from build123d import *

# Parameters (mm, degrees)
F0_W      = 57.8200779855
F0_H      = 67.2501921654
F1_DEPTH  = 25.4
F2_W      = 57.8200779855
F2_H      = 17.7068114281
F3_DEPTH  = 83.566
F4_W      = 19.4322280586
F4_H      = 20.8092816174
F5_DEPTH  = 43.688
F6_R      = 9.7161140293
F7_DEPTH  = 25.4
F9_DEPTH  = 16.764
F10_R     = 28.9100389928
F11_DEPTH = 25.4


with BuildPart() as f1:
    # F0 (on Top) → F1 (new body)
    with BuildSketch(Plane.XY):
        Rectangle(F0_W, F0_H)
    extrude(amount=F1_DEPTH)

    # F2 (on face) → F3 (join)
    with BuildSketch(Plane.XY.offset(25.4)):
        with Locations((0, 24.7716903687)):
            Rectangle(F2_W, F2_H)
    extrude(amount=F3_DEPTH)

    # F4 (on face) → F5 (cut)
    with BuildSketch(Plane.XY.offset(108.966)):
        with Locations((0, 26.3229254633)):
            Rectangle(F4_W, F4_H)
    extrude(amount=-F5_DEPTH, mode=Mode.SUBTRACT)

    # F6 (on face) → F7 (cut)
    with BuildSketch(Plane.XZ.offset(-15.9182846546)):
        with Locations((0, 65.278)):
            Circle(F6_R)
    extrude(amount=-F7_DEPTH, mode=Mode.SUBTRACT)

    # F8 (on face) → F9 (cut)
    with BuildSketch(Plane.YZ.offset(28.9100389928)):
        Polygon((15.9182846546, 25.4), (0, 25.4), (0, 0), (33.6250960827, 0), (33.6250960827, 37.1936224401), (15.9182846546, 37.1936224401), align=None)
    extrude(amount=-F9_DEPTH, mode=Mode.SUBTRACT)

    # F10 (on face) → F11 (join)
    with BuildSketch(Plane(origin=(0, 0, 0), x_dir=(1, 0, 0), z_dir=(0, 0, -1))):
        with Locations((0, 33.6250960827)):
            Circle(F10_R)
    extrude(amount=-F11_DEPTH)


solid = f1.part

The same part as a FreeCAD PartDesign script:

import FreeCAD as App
import Part
import Sketcher
from FreeCAD import Vector
Q = App.Units.Quantity

doc = App.newDocument("Part")
body = doc.addObject("PartDesign::Body", "Body")

# Sketch on XY plane
sketch1 = body.newObject("Sketcher::SketchObject", "Sketch")
sketch1.AttachmentSupport = (doc.getObject("XY_Plane"), [""])
sketch1.MapMode = "FlatFace"
sketch1.addGeometry([
    Part.LineSegment(Vector(-28.910039, 33.625096, 0), Vector(-28.910039, -33.625096, 0)),
    Part.LineSegment(Vector(-28.910039, -33.625096, 0), Vector(28.910039, -33.625096, 0)),
    Part.LineSegment(Vector(28.910039, -33.625096, 0), Vector(28.910039, 33.625096, 0)),
    Part.LineSegment(Vector(28.910039, 33.625096, 0), Vector(-28.910039, 33.625096, 0)),
], False)
sketch1.addConstraint([
    Sketcher.Constraint("Coincident", 0, 2, 1, 1),
    Sketcher.Constraint("Coincident", 1, 2, 2, 1),
    Sketcher.Constraint("Coincident", 2, 2, 3, 1),
    Sketcher.Constraint("Coincident", 3, 2, 0, 1),
    Sketcher.Constraint("Vertical", 0),
    Sketcher.Constraint("Horizontal", 1),
    Sketcher.Constraint("Vertical", 2),
    Sketcher.Constraint("Horizontal", 3),
    Sketcher.Constraint("Symmetric", 0, 2, 2, 2, -1, 1),
    Sketcher.Constraint("DistanceX", 1, 1, 1, 2, Q("57.820078 mm")),
    Sketcher.Constraint("DistanceY", 0, 2, 0, 1, Q("67.250192 mm")),
])
pad1 = body.newObject("PartDesign::Pad", "Pad")
pad1.Profile = sketch1
pad1.Length = Q("1 in")

# Sketch on XY plane
sketch2 = body.newObject("Sketcher::SketchObject", "Sketch001")
sketch2.AttachmentSupport = (doc.getObject("XY_Plane"), [""])
sketch2.MapMode = "FlatFace"
sketch2.AttachmentOffset = App.Placement(Vector(0, 0, 1 * 25.4), App.Rotation())
sketch2.addGeometry([
    Part.LineSegment(Vector(-28.910039, 33.625096, 0), Vector(-28.910039, 15.918285, 0)),
    Part.LineSegment(Vector(-28.910039, 15.918285, 0), Vector(28.910039, 15.918285, 0)),
    Part.LineSegment(Vector(28.910039, 15.918285, 0), Vector(28.910039, 33.625096, 0)),
    Part.LineSegment(Vector(28.910039, 33.625096, 0), Vector(-28.910039, 33.625096, 0)),
], False)
sketch2.addConstraint([
    Sketcher.Constraint("Coincident", 0, 2, 1, 1),
    Sketcher.Constraint("Coincident", 1, 2, 2, 1),
    Sketcher.Constraint("Coincident", 2, 2, 3, 1),
    Sketcher.Constraint("Coincident", 3, 2, 0, 1),
    Sketcher.Constraint("Vertical", 0),
    Sketcher.Constraint("Horizontal", 1),
    Sketcher.Constraint("Vertical", 2),
    Sketcher.Constraint("Horizontal", 3),
    Sketcher.Constraint("DistanceY", 0, 2, 0, 1, Q("17.706811 mm")),
    Sketcher.Constraint("DistanceX", 1, 1, 1, 2, Q("57.820078 mm")),
    Sketcher.Constraint("DistanceX", 0, 2, -1, 1, Q("28.910039 mm")),
    Sketcher.Constraint("DistanceY", -1, 1, 0, 2, Q("15.918285 mm")),
])
pad2 = body.newObject("PartDesign::Pad", "Pad001")
pad2.Profile = sketch2
pad2.Length = Q("3.29 in")

# Sketch on XY plane
sketch3 = body.newObject("Sketcher::SketchObject", "Sketch002")
sketch3.AttachmentSupport = (doc.getObject("XY_Plane"), [""])
sketch3.MapMode = "FlatFace"
sketch3.AttachmentOffset = App.Placement(Vector(0, 0, 4.29 * 25.4), App.Rotation())
sketch3.addGeometry([
    Part.LineSegment(Vector(-9.716114, 36.727566, 0), Vector(-9.716114, 15.918285, 0)),
    Part.LineSegment(Vector(-9.716114, 15.918285, 0), Vector(9.716114, 15.918285, 0)),
    Part.LineSegment(Vector(9.716114, 15.918285, 0), Vector(9.716114, 36.727566, 0)),
    Part.LineSegment(Vector(9.716114, 36.727566, 0), Vector(-9.716114, 36.727566, 0)),
], False)
sketch3.addConstraint([
    Sketcher.Constraint("Coincident", 0, 2, 1, 1),
    Sketcher.Constraint("Coincident", 1, 2, 2, 1),
    Sketcher.Constraint("Coincident", 2, 2, 3, 1),
    Sketcher.Constraint("Coincident", 3, 2, 0, 1),
    Sketcher.Constraint("Vertical", 0),
    Sketcher.Constraint("Horizontal", 1),
    Sketcher.Constraint("Vertical", 2),
    Sketcher.Constraint("Horizontal", 3),
    Sketcher.Constraint("DistanceX", 1, 1, 1, 2, Q("19.432228 mm")),
    Sketcher.Constraint("DistanceY", 0, 2, 0, 1, Q("20.809282 mm")),
    Sketcher.Constraint("DistanceX", 0, 2, -1, 1, Q("9.716114 mm")),
    Sketcher.Constraint("DistanceY", -1, 1, 0, 2, Q("15.918285 mm")),
])
pocket1 = body.newObject("PartDesign::Pocket", "Pocket")
pocket1.Profile = sketch3
pocket1.Length = Q("1.72 in")

# Sketch on XZ plane
sketch4 = body.newObject("Sketcher::SketchObject", "Sketch003")
sketch4.AttachmentSupport = (doc.getObject("XZ_Plane"), [""])
sketch4.MapMode = "FlatFace"
sketch4.AttachmentOffset = App.Placement(Vector(0, 0, -15.918285), App.Rotation())
sketch4.addGeometry(Part.Circle(Vector(0, 65.278, 0), Vector(0, 0, 1), 9.716114), False)
sketch4.addConstraint([
    Sketcher.Constraint("PointOnObject", 0, 3, -2),
    Sketcher.Constraint("DistanceY", -1, 1, 0, 3, Q("2.57 in")),
    Sketcher.Constraint("Diameter", 0, Q("19.432228 mm")),
])
pocket2 = body.newObject("PartDesign::Pocket", "Pocket001")
pocket2.Profile = sketch4
pocket2.Length = Q("1 in")

# Sketch on YZ plane
sketch5 = body.newObject("Sketcher::SketchObject", "Sketch004")
sketch5.AttachmentSupport = (doc.getObject("YZ_Plane"), [""])
sketch5.MapMode = "FlatFace"
sketch5.AttachmentOffset = App.Placement(Vector(0, 0, 28.910039), App.Rotation())
sketch5.addGeometry([
    Part.LineSegment(Vector(15.918285, 25.4, 0), Vector(0, 25.4, 0)),  # 0
    Part.LineSegment(Vector(0, 25.4, 0), Vector(0, 0, 0)),  # 1
    Part.LineSegment(Vector(0, 0, 0), Vector(33.625096, 0, 0)),  # 2
    Part.LineSegment(Vector(33.625096, 0, 0), Vector(33.625096, 37.193622, 0)),  # 3
    Part.LineSegment(Vector(33.625096, 37.193622, 0), Vector(15.918285, 37.193622, 0)),  # 4
    Part.LineSegment(Vector(15.918285, 37.193622, 0), Vector(15.918285, 25.4, 0)),  # 5
], False)
sketch5.addConstraint([
    Sketcher.Constraint("Coincident", 0, 2, 1, 1),
    Sketcher.Constraint("Coincident", 1, 2, 2, 1),
    Sketcher.Constraint("Coincident", 2, 2, 3, 1),
    Sketcher.Constraint("Coincident", 3, 2, 4, 1),
    Sketcher.Constraint("Coincident", 4, 2, 5, 1),
    Sketcher.Constraint("Coincident", 5, 2, 0, 1),
    Sketcher.Constraint("Horizontal", 0),
    Sketcher.Constraint("Vertical", 1),
    Sketcher.Constraint("Horizontal", 2),
    Sketcher.Constraint("Vertical", 3),
    Sketcher.Constraint("Horizontal", 4),
    Sketcher.Constraint("Vertical", 5),
    Sketcher.Constraint("Coincident", 1, 2, -1, 1),
    Sketcher.Constraint("DistanceY", 1, 2, 1, 1, Q("1 in")),
    Sketcher.Constraint("DistanceX", 4, 2, 4, 1, Q("17.706811 mm")),
    Sketcher.Constraint("DistanceX", 0, 2, 0, 1, Q("15.918285 mm")),
    Sketcher.Constraint("DistanceY", 3, 1, 3, 2, Q("37.193622 mm")),
])
pocket3 = body.newObject("PartDesign::Pocket", "Pocket002")
pocket3.Profile = sketch5
pocket3.Length = Q("0.66 in")

# Sketch on XY plane
sketch6 = body.newObject("Sketcher::SketchObject", "Sketch005")
sketch6.AttachmentSupport = (doc.getObject("XY_Plane"), [""])
sketch6.MapMode = "FlatFace"
sketch6.addGeometry(Part.Circle(Vector(0, -33.625096, 0), Vector(0, 0, 1), 28.910039), False)
sketch6.addConstraint([
    Sketcher.Constraint("PointOnObject", 0, 3, -2),
    Sketcher.Constraint("Diameter", 0, Q("57.820078 mm")),
    Sketcher.Constraint("DistanceY", 0, 3, -1, 1, Q("33.625096 mm")),
])
pad3 = body.newObject("PartDesign::Pad", "Pad002")
pad3.Profile = sketch6
pad3.Length = Q("1 in")

doc.recompute()
